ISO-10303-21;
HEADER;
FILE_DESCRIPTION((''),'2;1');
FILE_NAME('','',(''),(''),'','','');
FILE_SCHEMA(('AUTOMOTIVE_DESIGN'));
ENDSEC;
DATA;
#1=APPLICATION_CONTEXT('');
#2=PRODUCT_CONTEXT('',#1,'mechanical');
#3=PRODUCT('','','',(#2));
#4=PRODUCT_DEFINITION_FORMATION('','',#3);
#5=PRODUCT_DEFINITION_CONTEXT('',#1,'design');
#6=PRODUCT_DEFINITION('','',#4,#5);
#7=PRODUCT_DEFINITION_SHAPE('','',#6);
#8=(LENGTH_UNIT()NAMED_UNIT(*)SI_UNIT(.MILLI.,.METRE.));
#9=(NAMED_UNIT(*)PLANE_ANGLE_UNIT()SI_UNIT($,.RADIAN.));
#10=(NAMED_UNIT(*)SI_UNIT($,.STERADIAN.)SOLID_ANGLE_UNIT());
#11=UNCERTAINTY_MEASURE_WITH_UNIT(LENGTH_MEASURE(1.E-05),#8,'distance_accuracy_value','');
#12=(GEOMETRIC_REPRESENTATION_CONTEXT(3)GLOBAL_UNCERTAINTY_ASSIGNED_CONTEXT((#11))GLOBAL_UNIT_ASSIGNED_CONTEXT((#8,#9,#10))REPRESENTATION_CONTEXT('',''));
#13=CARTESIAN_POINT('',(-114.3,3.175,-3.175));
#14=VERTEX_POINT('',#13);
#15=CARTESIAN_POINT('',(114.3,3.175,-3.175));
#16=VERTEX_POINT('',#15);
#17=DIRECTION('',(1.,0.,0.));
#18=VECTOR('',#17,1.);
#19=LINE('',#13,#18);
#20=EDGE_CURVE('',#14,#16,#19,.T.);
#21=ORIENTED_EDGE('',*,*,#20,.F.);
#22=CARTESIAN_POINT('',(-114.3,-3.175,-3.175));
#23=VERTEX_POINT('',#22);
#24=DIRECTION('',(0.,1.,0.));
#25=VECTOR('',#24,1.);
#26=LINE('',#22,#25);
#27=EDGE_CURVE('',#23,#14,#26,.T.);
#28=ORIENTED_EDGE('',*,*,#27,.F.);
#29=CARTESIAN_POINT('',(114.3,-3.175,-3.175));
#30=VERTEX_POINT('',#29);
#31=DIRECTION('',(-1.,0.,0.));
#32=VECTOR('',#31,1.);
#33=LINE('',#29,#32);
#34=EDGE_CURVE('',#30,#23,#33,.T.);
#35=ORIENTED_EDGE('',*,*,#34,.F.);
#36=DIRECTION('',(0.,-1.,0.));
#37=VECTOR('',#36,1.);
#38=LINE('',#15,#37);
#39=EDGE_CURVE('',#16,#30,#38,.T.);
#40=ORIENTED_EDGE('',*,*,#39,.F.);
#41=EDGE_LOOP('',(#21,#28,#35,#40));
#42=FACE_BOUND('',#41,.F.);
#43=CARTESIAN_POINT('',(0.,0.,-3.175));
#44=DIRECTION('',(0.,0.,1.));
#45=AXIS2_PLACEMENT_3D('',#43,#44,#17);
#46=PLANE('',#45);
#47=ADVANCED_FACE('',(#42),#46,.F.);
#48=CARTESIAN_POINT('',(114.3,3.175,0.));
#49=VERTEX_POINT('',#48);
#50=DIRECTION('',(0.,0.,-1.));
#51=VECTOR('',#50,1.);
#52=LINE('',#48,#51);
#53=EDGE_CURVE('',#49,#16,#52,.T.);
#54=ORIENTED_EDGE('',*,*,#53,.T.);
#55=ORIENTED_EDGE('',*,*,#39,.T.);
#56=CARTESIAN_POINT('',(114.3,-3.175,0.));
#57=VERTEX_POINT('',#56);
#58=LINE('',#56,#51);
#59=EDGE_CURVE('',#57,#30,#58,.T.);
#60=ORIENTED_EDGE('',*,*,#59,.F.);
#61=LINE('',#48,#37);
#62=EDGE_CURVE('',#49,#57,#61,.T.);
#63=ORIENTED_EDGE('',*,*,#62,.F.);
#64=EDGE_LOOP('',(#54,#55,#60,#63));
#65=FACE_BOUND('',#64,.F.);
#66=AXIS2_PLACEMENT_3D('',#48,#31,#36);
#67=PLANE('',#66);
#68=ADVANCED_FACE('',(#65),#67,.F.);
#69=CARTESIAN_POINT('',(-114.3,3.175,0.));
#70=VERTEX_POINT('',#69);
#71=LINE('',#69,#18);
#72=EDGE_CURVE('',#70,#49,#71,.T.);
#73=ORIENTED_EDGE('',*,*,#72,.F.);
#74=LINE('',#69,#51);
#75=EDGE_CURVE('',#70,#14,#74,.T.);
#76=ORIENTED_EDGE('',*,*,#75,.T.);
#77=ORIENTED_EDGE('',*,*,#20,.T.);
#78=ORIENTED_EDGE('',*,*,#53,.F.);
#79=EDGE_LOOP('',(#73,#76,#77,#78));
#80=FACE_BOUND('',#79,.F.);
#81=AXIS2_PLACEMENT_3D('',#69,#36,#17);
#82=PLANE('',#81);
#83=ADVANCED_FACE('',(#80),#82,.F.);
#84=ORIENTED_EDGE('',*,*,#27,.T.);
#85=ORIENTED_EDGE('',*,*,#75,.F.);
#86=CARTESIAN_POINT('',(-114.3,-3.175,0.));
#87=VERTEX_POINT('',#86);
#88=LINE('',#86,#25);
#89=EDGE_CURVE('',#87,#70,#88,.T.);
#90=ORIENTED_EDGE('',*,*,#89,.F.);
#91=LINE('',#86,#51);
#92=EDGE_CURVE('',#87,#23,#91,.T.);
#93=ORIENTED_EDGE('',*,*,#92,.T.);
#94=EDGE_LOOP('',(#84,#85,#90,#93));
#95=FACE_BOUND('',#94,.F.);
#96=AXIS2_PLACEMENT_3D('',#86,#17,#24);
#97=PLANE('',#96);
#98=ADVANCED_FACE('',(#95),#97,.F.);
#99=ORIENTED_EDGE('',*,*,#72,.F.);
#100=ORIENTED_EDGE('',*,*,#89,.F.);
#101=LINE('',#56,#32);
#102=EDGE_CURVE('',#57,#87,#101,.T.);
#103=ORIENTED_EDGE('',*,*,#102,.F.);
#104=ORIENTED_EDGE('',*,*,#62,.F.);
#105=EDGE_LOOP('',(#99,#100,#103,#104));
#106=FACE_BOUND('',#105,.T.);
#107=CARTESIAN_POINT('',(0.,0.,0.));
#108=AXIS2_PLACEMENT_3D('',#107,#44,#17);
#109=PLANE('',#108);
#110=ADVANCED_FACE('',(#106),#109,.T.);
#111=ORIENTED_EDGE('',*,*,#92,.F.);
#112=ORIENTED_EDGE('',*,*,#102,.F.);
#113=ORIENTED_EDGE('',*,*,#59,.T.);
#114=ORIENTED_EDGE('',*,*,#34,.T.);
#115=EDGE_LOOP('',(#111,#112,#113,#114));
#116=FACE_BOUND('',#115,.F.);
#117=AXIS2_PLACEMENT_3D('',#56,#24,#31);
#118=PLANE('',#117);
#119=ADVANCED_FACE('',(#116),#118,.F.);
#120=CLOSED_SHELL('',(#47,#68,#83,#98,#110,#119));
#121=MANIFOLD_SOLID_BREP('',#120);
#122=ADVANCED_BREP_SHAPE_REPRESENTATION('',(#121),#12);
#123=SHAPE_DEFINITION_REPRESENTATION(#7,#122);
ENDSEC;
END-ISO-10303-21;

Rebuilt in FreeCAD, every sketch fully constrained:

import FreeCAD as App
import Part
import Sketcher
from FreeCAD import Vector
Q = App.Units.Quantity

doc = App.newDocument("Part")
body = doc.addObject("PartDesign::Body", "Body")

# Sketch on XY plane
sketch1 = body.newObject("Sketcher::SketchObject", "Sketch")
sketch1.AttachmentSupport = (doc.getObject("XY_Plane"), [""])
sketch1.MapMode = "FlatFace"
sketch1.addGeometry([
    Part.LineSegment(Vector(114, 3, 0), Vector(-114, 3, 0)),
    Part.LineSegment(Vector(-114, 3, 0), Vector(-114, -3, 0)),
    Part.LineSegment(Vector(-114, -3, 0), Vector(114, -3, 0)),
    Part.LineSegment(Vector(114, -3, 0), Vector(114, 3, 0)),
], False)
sketch1.addConstraint([
    Sketcher.Constraint("Coincident", 0, 2, 1, 1),
    Sketcher.Constraint("Coincident", 1, 2, 2, 1),
    Sketcher.Constraint("Coincident", 2, 2, 3, 1),
    Sketcher.Constraint("Coincident", 3, 2, 0, 1),
    Sketcher.Constraint("Horizontal", 0),
    Sketcher.Constraint("Vertical", 1),
    Sketcher.Constraint("Horizontal", 2),
    Sketcher.Constraint("Vertical", 3),
    Sketcher.Constraint("Symmetric", 0, 2, 2, 2, -1, 1),
    Sketcher.Constraint("DistanceX", 0, 2, 0, 1, Q("9 in")),
    Sketcher.Constraint("DistanceY", 1, 2, 1, 1, Q("0.25 in")),
])
pad1 = body.newObject("PartDesign::Pad", "Pad")
pad1.Profile = sketch1
pad1.Length = Q("0.125 in")
pad1.Reversed = True

doc.recompute()
